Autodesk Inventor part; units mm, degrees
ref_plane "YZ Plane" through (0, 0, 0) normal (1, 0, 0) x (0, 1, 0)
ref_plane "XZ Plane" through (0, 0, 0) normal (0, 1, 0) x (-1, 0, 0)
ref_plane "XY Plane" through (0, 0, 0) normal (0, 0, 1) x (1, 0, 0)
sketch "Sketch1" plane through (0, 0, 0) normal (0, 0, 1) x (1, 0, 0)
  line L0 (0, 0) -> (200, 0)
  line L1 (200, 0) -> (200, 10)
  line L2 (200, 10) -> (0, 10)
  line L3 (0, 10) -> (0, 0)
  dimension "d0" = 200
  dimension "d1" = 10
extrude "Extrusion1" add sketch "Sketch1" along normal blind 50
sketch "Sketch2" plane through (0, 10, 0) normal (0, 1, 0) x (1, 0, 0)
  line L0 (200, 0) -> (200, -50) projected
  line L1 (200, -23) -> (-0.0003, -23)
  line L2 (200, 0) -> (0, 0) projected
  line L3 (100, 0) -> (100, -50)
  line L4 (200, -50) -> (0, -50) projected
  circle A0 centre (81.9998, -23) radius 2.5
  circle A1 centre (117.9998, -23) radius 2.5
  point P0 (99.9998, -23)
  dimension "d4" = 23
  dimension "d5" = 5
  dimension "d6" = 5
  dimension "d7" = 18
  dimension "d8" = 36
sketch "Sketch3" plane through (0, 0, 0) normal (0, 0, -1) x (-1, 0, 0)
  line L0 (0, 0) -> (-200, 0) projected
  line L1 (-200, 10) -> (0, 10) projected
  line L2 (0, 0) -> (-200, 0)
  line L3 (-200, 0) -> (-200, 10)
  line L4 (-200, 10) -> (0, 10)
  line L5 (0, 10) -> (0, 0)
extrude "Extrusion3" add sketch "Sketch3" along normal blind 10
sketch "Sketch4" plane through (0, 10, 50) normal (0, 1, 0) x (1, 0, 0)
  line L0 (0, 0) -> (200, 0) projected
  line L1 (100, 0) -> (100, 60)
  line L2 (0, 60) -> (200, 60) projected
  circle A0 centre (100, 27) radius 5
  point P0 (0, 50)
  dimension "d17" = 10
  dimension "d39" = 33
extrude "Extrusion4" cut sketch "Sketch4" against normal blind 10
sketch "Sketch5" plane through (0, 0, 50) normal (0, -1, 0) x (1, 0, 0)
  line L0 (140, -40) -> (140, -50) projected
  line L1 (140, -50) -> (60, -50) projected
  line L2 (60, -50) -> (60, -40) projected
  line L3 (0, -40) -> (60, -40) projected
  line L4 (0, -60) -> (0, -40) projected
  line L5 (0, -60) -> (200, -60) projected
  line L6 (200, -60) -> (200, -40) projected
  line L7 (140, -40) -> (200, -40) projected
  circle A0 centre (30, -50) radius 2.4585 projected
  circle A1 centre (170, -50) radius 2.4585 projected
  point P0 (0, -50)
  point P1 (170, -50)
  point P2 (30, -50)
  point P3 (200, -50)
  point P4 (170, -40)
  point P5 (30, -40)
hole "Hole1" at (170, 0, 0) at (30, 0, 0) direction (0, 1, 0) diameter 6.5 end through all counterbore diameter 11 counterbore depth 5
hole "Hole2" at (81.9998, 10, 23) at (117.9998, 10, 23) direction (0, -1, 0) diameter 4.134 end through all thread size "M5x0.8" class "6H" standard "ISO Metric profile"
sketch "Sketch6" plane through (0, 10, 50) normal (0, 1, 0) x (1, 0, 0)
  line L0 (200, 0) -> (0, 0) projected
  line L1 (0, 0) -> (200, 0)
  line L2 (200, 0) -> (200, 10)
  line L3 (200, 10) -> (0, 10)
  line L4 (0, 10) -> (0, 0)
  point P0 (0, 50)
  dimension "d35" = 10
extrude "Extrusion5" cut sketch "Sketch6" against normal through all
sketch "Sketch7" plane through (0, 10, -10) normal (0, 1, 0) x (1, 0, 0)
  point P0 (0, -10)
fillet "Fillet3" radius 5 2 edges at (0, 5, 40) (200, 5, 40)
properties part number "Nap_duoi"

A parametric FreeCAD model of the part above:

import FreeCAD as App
import Part
import Sketcher
Q = App.Units.Quantity


def edges_at(feature, points):
    """Names of the edges that pass closest to the given points."""
    edges = feature.Shape.Edges
    near = lambda p: min(range(len(edges)), key=lambda i: edges[i].distToShape(Part.Vertex(*p))[0])
    return sorted({f"Edge{near(p) + 1}" for p in points})


def add_polygon(sketch, points):
    """Adds a closed chain of lines whose ends are joined by coincident constraints."""
    first, n = sketch.GeometryCount, len(points)
    for a, b in zip(points, points[1:] + points[:1]):
        sketch.addGeometry(Part.LineSegment(App.Vector(*a, 0), App.Vector(*b, 0)), False)
    for i in range(n):
        sketch.addConstraint(Sketcher.Constraint("Coincident", first + i, 2, first + (i + 1) % n, 1))

doc = App.newDocument("Part")
body = doc.addObject("PartDesign::Body", "Body")

# Sketch on XY plane
sketch1 = body.newObject("Sketcher::SketchObject", "Sketch")
sketch1.AttachmentSupport = (doc.getObject("XY_Plane"), [""])
sketch1.MapMode = "FlatFace"
add_polygon(sketch1, [(0, 10), (0, 0), (200, 0), (200, 10)])  # lines 0-3
sketch1.addConstraint([
    Sketcher.Constraint("Vertical", 0),
    Sketcher.Constraint("Horizontal", 1),
    Sketcher.Constraint("Vertical", 2),
    Sketcher.Constraint("Horizontal", 3),
    Sketcher.Constraint("Coincident", 0, 2, -1, 1),
    Sketcher.Constraint("DistanceX", 1, 1, 1, 2, Q("200 mm")),
    Sketcher.Constraint("DistanceY", 0, 2, 0, 1, Q("10 mm")),
])
pad1 = body.newObject("PartDesign::Pad", "Pad")
pad1.Profile = sketch1
pad1.Length = 50

# Sketch on XY plane
sketch2 = body.newObject("Sketcher::SketchObject", "Sketch001")
sketch2.AttachmentSupport = (doc.getObject("XY_Plane"), [""])
sketch2.MapMode = "FlatFace"
add_polygon(sketch2, [(200, 0), (0, 0), (0, 10), (200, 10)])  # lines 0-3
sketch2.addConstraint([
    Sketcher.Constraint("Horizontal", 0),
    Sketcher.Constraint("Vertical", 1),
    Sketcher.Constraint("Horizontal", 2),
    Sketcher.Constraint("Vertical", 3),
    Sketcher.Constraint("Coincident", 0, 2, -1, 1),
    Sketcher.Constraint("DistanceX", 0, 2, 0, 1, Q("200 mm")),
    Sketcher.Constraint("DistanceY", 1, 1, 1, 2, Q("10 mm")),
])
pad2 = body.newObject("PartDesign::Pad", "Pad001")
pad2.Profile = sketch2
pad2.Length = 10
pad2.Reversed = True

# Sketch on XZ plane
sketch3 = body.newObject("Sketcher::SketchObject", "Sketch002")
sketch3.AttachmentSupport = (doc.getObject("XZ_Plane"), [""])
sketch3.MapMode = "FlatFace"
sketch3.AttachmentOffset = App.Placement(App.Vector(0, 0, -10), App.Rotation())
sketch3.addGeometry(Part.Circle(App.Vector(100, 23, 0), App.Vector(0, 0, 1), 5), False)
sketch3.addConstraint([
    Sketcher.Constraint("Diameter", 0, Q("10 mm")),
    Sketcher.Constraint("DistanceX", -1, 1, 0, 3, Q("100 mm")),
    Sketcher.Constraint("DistanceY", -1, 1, 0, 3, Q("23 mm")),
])
pocket1 = body.newObject("PartDesign::Pocket", "Pocket")
pocket1.Profile = sketch3
pocket1.Length = 10
pocket1.Reversed = True

# Sketch on XZ plane
sketch4 = body.newObject("Sketcher::SketchObject", "Sketch003")
sketch4.AttachmentSupport = (doc.getObject("XZ_Plane"), [""])
sketch4.MapMode = "FlatFace"
sketch4.addGeometry([
    Part.Circle(App.Vector(170, 0, 0), App.Vector(0, 0, 1), 3.25),
    Part.Circle(App.Vector(30, 0, 0), App.Vector(0, 0, 1), 3.25),
], False)
sketch4.addConstraint([
    Sketcher.Constraint("Equal", 0, 1),
    Sketcher.Constraint("PointOnObject", 0, 3, -1),
    Sketcher.Constraint("PointOnObject", 1, 3, -1),
    Sketcher.Constraint("Diameter", 0, Q("6.5 mm")),
    Sketcher.Constraint("DistanceX", -1, 1, 0, 3, Q("170 mm")),
    Sketcher.Constraint("DistanceX", -1, 1, 1, 3, Q("30 mm")),
])
doc.recompute()
hole = body.newObject("PartDesign::Hole", "Hole")
hole.Profile = sketch4
hole.ThreadType = "None"
hole.Diameter = 6.5
hole.DepthType = "ThroughAll"
hole.HoleCutType = "Counterbore"
hole.HoleCutDiameter = 11
hole.HoleCutDepth = 5

# Sketch on XZ plane
sketch5 = body.newObject("Sketcher::SketchObject", "Sketch004")
sketch5.AttachmentSupport = (doc.getObject("XZ_Plane"), [""])
sketch5.MapMode = "FlatFace"
sketch5.AttachmentOffset = App.Placement(App.Vector(0, 0, -10), App.Rotation())
sketch5.addGeometry([
    Part.Circle(App.Vector(81.9998, 23, 0), App.Vector(0, 0, 1), 2.067),
    Part.Circle(App.Vector(117.9998, 23, 0), App.Vector(0, 0, 1), 2.067),
], False)
sketch5.addConstraint([
    Sketcher.Constraint("Equal", 0, 1),
    Sketcher.Constraint("Horizontal", 0, 3, 1, 3),
    Sketcher.Constraint("Diameter", 0, Q("4.134 mm")),
    Sketcher.Constraint("DistanceY", -1, 1, 0, 3, Q("23 mm")),
    Sketcher.Constraint("DistanceX", 0, 3, 1, 3, Q("36 mm")),
    Sketcher.Constraint("DistanceX", -1, 1, 0, 3, Q("81.9998 mm")),
])
doc.recompute()
hole2 = body.newObject("PartDesign::Hole", "Hole001")
hole2.Profile = sketch5
hole2.ThreadType = "None"
hole2.Diameter = 4.134
hole2.DepthType = "ThroughAll"
hole2.Reversed = True

# Sketch on XZ plane
sketch6 = body.newObject("Sketcher::SketchObject", "Sketch005")
sketch6.AttachmentSupport = (doc.getObject("XZ_Plane"), [""])
sketch6.MapMode = "FlatFace"
sketch6.AttachmentOffset = App.Placement(App.Vector(0, 0, -10), App.Rotation())
add_polygon(sketch6, [(0, 50), (200, 50), (200, 40), (0, 40)])  # lines 0-3
sketch6.addConstraint([
    Sketcher.Constraint("Horizontal", 0),
    Sketcher.Constraint("Vertical", 1),
    Sketcher.Constraint("Horizontal", 2),
    Sketcher.Constraint("Vertical", 3),
    Sketcher.Constraint("PointOnObject", 2, 2, -2),
    Sketcher.Constraint("DistanceY", 1, 2, 1, 1, Q("10 mm")),
    Sketcher.Constraint("DistanceX", 0, 1, 0, 2, Q("200 mm")),
    Sketcher.Constraint("DistanceY", -1, 1, 0, 2, Q("50 mm")),
])
pocket2 = body.newObject("PartDesign::Pocket", "Pocket001")
pocket2.Profile = sketch6
pocket2.Type = "ThroughAll"
pocket2.Reversed = True
doc.recompute()

fillet = body.newObject("PartDesign::Fillet", "Fillet")
fillet.Base = (pocket2, edges_at(pocket2, [(0, 5, 40), (200, 5, 40)]))
fillet.Radius = 5

doc.recompute()
